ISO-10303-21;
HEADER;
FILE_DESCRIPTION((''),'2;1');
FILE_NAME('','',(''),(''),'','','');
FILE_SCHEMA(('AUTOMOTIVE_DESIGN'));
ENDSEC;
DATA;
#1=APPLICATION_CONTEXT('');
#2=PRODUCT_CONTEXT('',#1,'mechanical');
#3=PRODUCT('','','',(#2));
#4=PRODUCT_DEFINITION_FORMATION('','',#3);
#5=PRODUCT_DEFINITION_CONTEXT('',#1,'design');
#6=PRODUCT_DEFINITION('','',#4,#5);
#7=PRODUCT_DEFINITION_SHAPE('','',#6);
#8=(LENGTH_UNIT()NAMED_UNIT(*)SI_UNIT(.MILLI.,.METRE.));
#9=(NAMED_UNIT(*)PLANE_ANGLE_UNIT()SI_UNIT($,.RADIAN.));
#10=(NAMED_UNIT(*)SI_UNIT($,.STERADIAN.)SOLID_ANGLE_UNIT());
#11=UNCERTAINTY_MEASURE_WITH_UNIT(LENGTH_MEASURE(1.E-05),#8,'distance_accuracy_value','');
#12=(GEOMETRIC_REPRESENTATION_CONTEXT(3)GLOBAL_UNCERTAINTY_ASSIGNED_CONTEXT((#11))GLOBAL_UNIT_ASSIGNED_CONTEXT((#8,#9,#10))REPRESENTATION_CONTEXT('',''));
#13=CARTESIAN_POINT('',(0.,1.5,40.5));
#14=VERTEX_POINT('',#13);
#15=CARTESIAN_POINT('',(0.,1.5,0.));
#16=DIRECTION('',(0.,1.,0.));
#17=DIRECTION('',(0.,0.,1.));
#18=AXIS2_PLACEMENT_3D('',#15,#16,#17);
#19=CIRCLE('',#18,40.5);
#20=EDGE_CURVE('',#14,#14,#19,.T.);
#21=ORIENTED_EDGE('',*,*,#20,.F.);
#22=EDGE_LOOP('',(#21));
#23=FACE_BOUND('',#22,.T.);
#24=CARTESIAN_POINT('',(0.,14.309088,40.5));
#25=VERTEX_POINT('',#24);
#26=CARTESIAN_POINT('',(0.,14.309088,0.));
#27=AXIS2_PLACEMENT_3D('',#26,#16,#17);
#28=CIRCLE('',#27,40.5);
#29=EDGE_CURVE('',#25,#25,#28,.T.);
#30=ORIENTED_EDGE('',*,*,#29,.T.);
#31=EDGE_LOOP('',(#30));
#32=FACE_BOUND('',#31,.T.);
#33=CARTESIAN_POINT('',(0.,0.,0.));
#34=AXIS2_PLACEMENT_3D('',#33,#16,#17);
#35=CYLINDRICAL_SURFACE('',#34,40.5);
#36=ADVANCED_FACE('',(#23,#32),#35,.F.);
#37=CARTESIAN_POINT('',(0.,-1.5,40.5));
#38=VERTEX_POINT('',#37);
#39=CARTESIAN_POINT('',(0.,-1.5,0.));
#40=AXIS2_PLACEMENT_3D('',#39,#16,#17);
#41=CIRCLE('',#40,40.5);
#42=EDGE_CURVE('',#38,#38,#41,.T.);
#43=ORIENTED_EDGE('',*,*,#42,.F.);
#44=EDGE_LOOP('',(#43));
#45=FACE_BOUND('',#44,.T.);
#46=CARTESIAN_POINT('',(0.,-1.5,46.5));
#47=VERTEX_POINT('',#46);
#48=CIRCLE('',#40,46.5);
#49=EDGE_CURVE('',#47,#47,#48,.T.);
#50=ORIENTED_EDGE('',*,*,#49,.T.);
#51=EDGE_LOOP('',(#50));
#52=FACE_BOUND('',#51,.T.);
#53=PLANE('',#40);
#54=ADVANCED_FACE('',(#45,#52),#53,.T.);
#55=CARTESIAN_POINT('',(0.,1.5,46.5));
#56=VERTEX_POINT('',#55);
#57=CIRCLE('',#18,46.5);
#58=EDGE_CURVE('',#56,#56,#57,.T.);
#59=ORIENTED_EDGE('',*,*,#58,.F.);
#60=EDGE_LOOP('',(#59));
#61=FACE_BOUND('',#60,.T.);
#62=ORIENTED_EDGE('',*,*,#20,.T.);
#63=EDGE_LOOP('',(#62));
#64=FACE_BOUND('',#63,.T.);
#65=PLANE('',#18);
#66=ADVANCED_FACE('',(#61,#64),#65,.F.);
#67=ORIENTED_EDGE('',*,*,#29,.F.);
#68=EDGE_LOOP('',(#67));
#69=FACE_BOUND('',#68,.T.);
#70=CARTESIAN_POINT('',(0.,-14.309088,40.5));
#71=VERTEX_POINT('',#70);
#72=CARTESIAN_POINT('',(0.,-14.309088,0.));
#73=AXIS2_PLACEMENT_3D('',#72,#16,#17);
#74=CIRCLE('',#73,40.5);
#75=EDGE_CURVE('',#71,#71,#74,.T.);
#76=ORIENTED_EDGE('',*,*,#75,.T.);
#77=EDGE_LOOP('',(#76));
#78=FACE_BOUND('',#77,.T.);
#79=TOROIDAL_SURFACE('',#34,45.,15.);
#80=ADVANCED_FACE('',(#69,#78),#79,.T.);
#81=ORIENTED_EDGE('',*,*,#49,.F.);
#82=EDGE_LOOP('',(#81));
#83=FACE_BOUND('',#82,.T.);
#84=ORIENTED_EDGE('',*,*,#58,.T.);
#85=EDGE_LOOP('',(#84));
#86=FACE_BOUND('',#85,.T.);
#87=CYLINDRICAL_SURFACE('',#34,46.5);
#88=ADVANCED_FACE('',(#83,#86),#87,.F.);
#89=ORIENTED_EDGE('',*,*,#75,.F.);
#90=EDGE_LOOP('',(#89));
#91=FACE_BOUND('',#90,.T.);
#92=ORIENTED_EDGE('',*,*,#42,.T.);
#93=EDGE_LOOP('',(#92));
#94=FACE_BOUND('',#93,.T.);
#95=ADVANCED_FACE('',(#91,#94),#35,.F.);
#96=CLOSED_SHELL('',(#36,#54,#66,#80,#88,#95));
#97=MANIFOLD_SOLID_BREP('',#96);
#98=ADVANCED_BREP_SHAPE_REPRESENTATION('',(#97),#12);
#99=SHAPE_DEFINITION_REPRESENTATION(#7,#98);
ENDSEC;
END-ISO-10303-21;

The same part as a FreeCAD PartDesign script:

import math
import FreeCAD as App
import Part
import Sketcher
from FreeCAD import Vector
Q = App.Units.Quantity

doc = App.newDocument("Part")
body = doc.addObject("PartDesign::Body", "Body")

sketch1 = body.newObject("Sketcher::SketchObject", "Sketch")
sketch1.AttachmentSupport = (doc.getObject("XY_Plane"), [""])
sketch1.MapMode = "FlatFace"
sketch1.addGeometry([
    Part.ArcOfCircle(Part.Circle(Vector(-45, 0, 0), Vector(0, 0, 1), 15), math.radians(73), math.radians(287)),
    Part.LineSegment(Vector(-40.5, -14.3, 0), Vector(-40.5, -1.5, 0)),
    Part.LineSegment(Vector(-40.5, -1.5, 0), Vector(-46.5, -1.5, 0)),
    Part.LineSegment(Vector(-46.5, -1.5, 0), Vector(-46.5, 1.5, 0)),
    Part.LineSegment(Vector(-46.5, 1.5, 0), Vector(-40.5, 1.5, 0)),
    Part.LineSegment(Vector(-40.5, 1.5, 0), Vector(-40.5, 14.3, 0)),
], False)
sketch1.addConstraint([
    Sketcher.Constraint("Coincident", 0, 2, 1, 1),
    Sketcher.Constraint("Coincident", 1, 2, 2, 1),
    Sketcher.Constraint("Coincident", 2, 2, 3, 1),
    Sketcher.Constraint("Coincident", 3, 2, 4, 1),
    Sketcher.Constraint("Coincident", 4, 2, 5, 1),
    Sketcher.Constraint("Coincident", 5, 2, 0, 1),
    Sketcher.Constraint("Vertical", 1),
    Sketcher.Constraint("Horizontal", 2),
    Sketcher.Constraint("Vertical", 3),
    Sketcher.Constraint("Horizontal", 4),
    Sketcher.Constraint("Vertical", 5),
    Sketcher.Constraint("Symmetric", 1, 2, 4, 2, -1),
    Sketcher.Constraint("PointOnObject", 0, 3, -1),
    Sketcher.Constraint("Radius", 0, Q("15 mm")),
    Sketcher.Constraint("DistanceX", 2, 2, 2, 1, Q("6 mm")),
    Sketcher.Constraint("DistanceY", 3, 1, 3, 2, Q("3 mm")),
    Sketcher.Constraint("DistanceX", 0, 3, -1, 1, Q("45 mm")),
    Sketcher.Constraint("DistanceX", 0, 2, -1, 1, Q("40.5 mm")),
])
revolution = body.newObject("PartDesign::Revolution", "Revolution")
revolution.Profile = sketch1
revolution.ReferenceAxis = (sketch1, ["V_Axis"])
revolution.Angle = 360

doc.recompute()
